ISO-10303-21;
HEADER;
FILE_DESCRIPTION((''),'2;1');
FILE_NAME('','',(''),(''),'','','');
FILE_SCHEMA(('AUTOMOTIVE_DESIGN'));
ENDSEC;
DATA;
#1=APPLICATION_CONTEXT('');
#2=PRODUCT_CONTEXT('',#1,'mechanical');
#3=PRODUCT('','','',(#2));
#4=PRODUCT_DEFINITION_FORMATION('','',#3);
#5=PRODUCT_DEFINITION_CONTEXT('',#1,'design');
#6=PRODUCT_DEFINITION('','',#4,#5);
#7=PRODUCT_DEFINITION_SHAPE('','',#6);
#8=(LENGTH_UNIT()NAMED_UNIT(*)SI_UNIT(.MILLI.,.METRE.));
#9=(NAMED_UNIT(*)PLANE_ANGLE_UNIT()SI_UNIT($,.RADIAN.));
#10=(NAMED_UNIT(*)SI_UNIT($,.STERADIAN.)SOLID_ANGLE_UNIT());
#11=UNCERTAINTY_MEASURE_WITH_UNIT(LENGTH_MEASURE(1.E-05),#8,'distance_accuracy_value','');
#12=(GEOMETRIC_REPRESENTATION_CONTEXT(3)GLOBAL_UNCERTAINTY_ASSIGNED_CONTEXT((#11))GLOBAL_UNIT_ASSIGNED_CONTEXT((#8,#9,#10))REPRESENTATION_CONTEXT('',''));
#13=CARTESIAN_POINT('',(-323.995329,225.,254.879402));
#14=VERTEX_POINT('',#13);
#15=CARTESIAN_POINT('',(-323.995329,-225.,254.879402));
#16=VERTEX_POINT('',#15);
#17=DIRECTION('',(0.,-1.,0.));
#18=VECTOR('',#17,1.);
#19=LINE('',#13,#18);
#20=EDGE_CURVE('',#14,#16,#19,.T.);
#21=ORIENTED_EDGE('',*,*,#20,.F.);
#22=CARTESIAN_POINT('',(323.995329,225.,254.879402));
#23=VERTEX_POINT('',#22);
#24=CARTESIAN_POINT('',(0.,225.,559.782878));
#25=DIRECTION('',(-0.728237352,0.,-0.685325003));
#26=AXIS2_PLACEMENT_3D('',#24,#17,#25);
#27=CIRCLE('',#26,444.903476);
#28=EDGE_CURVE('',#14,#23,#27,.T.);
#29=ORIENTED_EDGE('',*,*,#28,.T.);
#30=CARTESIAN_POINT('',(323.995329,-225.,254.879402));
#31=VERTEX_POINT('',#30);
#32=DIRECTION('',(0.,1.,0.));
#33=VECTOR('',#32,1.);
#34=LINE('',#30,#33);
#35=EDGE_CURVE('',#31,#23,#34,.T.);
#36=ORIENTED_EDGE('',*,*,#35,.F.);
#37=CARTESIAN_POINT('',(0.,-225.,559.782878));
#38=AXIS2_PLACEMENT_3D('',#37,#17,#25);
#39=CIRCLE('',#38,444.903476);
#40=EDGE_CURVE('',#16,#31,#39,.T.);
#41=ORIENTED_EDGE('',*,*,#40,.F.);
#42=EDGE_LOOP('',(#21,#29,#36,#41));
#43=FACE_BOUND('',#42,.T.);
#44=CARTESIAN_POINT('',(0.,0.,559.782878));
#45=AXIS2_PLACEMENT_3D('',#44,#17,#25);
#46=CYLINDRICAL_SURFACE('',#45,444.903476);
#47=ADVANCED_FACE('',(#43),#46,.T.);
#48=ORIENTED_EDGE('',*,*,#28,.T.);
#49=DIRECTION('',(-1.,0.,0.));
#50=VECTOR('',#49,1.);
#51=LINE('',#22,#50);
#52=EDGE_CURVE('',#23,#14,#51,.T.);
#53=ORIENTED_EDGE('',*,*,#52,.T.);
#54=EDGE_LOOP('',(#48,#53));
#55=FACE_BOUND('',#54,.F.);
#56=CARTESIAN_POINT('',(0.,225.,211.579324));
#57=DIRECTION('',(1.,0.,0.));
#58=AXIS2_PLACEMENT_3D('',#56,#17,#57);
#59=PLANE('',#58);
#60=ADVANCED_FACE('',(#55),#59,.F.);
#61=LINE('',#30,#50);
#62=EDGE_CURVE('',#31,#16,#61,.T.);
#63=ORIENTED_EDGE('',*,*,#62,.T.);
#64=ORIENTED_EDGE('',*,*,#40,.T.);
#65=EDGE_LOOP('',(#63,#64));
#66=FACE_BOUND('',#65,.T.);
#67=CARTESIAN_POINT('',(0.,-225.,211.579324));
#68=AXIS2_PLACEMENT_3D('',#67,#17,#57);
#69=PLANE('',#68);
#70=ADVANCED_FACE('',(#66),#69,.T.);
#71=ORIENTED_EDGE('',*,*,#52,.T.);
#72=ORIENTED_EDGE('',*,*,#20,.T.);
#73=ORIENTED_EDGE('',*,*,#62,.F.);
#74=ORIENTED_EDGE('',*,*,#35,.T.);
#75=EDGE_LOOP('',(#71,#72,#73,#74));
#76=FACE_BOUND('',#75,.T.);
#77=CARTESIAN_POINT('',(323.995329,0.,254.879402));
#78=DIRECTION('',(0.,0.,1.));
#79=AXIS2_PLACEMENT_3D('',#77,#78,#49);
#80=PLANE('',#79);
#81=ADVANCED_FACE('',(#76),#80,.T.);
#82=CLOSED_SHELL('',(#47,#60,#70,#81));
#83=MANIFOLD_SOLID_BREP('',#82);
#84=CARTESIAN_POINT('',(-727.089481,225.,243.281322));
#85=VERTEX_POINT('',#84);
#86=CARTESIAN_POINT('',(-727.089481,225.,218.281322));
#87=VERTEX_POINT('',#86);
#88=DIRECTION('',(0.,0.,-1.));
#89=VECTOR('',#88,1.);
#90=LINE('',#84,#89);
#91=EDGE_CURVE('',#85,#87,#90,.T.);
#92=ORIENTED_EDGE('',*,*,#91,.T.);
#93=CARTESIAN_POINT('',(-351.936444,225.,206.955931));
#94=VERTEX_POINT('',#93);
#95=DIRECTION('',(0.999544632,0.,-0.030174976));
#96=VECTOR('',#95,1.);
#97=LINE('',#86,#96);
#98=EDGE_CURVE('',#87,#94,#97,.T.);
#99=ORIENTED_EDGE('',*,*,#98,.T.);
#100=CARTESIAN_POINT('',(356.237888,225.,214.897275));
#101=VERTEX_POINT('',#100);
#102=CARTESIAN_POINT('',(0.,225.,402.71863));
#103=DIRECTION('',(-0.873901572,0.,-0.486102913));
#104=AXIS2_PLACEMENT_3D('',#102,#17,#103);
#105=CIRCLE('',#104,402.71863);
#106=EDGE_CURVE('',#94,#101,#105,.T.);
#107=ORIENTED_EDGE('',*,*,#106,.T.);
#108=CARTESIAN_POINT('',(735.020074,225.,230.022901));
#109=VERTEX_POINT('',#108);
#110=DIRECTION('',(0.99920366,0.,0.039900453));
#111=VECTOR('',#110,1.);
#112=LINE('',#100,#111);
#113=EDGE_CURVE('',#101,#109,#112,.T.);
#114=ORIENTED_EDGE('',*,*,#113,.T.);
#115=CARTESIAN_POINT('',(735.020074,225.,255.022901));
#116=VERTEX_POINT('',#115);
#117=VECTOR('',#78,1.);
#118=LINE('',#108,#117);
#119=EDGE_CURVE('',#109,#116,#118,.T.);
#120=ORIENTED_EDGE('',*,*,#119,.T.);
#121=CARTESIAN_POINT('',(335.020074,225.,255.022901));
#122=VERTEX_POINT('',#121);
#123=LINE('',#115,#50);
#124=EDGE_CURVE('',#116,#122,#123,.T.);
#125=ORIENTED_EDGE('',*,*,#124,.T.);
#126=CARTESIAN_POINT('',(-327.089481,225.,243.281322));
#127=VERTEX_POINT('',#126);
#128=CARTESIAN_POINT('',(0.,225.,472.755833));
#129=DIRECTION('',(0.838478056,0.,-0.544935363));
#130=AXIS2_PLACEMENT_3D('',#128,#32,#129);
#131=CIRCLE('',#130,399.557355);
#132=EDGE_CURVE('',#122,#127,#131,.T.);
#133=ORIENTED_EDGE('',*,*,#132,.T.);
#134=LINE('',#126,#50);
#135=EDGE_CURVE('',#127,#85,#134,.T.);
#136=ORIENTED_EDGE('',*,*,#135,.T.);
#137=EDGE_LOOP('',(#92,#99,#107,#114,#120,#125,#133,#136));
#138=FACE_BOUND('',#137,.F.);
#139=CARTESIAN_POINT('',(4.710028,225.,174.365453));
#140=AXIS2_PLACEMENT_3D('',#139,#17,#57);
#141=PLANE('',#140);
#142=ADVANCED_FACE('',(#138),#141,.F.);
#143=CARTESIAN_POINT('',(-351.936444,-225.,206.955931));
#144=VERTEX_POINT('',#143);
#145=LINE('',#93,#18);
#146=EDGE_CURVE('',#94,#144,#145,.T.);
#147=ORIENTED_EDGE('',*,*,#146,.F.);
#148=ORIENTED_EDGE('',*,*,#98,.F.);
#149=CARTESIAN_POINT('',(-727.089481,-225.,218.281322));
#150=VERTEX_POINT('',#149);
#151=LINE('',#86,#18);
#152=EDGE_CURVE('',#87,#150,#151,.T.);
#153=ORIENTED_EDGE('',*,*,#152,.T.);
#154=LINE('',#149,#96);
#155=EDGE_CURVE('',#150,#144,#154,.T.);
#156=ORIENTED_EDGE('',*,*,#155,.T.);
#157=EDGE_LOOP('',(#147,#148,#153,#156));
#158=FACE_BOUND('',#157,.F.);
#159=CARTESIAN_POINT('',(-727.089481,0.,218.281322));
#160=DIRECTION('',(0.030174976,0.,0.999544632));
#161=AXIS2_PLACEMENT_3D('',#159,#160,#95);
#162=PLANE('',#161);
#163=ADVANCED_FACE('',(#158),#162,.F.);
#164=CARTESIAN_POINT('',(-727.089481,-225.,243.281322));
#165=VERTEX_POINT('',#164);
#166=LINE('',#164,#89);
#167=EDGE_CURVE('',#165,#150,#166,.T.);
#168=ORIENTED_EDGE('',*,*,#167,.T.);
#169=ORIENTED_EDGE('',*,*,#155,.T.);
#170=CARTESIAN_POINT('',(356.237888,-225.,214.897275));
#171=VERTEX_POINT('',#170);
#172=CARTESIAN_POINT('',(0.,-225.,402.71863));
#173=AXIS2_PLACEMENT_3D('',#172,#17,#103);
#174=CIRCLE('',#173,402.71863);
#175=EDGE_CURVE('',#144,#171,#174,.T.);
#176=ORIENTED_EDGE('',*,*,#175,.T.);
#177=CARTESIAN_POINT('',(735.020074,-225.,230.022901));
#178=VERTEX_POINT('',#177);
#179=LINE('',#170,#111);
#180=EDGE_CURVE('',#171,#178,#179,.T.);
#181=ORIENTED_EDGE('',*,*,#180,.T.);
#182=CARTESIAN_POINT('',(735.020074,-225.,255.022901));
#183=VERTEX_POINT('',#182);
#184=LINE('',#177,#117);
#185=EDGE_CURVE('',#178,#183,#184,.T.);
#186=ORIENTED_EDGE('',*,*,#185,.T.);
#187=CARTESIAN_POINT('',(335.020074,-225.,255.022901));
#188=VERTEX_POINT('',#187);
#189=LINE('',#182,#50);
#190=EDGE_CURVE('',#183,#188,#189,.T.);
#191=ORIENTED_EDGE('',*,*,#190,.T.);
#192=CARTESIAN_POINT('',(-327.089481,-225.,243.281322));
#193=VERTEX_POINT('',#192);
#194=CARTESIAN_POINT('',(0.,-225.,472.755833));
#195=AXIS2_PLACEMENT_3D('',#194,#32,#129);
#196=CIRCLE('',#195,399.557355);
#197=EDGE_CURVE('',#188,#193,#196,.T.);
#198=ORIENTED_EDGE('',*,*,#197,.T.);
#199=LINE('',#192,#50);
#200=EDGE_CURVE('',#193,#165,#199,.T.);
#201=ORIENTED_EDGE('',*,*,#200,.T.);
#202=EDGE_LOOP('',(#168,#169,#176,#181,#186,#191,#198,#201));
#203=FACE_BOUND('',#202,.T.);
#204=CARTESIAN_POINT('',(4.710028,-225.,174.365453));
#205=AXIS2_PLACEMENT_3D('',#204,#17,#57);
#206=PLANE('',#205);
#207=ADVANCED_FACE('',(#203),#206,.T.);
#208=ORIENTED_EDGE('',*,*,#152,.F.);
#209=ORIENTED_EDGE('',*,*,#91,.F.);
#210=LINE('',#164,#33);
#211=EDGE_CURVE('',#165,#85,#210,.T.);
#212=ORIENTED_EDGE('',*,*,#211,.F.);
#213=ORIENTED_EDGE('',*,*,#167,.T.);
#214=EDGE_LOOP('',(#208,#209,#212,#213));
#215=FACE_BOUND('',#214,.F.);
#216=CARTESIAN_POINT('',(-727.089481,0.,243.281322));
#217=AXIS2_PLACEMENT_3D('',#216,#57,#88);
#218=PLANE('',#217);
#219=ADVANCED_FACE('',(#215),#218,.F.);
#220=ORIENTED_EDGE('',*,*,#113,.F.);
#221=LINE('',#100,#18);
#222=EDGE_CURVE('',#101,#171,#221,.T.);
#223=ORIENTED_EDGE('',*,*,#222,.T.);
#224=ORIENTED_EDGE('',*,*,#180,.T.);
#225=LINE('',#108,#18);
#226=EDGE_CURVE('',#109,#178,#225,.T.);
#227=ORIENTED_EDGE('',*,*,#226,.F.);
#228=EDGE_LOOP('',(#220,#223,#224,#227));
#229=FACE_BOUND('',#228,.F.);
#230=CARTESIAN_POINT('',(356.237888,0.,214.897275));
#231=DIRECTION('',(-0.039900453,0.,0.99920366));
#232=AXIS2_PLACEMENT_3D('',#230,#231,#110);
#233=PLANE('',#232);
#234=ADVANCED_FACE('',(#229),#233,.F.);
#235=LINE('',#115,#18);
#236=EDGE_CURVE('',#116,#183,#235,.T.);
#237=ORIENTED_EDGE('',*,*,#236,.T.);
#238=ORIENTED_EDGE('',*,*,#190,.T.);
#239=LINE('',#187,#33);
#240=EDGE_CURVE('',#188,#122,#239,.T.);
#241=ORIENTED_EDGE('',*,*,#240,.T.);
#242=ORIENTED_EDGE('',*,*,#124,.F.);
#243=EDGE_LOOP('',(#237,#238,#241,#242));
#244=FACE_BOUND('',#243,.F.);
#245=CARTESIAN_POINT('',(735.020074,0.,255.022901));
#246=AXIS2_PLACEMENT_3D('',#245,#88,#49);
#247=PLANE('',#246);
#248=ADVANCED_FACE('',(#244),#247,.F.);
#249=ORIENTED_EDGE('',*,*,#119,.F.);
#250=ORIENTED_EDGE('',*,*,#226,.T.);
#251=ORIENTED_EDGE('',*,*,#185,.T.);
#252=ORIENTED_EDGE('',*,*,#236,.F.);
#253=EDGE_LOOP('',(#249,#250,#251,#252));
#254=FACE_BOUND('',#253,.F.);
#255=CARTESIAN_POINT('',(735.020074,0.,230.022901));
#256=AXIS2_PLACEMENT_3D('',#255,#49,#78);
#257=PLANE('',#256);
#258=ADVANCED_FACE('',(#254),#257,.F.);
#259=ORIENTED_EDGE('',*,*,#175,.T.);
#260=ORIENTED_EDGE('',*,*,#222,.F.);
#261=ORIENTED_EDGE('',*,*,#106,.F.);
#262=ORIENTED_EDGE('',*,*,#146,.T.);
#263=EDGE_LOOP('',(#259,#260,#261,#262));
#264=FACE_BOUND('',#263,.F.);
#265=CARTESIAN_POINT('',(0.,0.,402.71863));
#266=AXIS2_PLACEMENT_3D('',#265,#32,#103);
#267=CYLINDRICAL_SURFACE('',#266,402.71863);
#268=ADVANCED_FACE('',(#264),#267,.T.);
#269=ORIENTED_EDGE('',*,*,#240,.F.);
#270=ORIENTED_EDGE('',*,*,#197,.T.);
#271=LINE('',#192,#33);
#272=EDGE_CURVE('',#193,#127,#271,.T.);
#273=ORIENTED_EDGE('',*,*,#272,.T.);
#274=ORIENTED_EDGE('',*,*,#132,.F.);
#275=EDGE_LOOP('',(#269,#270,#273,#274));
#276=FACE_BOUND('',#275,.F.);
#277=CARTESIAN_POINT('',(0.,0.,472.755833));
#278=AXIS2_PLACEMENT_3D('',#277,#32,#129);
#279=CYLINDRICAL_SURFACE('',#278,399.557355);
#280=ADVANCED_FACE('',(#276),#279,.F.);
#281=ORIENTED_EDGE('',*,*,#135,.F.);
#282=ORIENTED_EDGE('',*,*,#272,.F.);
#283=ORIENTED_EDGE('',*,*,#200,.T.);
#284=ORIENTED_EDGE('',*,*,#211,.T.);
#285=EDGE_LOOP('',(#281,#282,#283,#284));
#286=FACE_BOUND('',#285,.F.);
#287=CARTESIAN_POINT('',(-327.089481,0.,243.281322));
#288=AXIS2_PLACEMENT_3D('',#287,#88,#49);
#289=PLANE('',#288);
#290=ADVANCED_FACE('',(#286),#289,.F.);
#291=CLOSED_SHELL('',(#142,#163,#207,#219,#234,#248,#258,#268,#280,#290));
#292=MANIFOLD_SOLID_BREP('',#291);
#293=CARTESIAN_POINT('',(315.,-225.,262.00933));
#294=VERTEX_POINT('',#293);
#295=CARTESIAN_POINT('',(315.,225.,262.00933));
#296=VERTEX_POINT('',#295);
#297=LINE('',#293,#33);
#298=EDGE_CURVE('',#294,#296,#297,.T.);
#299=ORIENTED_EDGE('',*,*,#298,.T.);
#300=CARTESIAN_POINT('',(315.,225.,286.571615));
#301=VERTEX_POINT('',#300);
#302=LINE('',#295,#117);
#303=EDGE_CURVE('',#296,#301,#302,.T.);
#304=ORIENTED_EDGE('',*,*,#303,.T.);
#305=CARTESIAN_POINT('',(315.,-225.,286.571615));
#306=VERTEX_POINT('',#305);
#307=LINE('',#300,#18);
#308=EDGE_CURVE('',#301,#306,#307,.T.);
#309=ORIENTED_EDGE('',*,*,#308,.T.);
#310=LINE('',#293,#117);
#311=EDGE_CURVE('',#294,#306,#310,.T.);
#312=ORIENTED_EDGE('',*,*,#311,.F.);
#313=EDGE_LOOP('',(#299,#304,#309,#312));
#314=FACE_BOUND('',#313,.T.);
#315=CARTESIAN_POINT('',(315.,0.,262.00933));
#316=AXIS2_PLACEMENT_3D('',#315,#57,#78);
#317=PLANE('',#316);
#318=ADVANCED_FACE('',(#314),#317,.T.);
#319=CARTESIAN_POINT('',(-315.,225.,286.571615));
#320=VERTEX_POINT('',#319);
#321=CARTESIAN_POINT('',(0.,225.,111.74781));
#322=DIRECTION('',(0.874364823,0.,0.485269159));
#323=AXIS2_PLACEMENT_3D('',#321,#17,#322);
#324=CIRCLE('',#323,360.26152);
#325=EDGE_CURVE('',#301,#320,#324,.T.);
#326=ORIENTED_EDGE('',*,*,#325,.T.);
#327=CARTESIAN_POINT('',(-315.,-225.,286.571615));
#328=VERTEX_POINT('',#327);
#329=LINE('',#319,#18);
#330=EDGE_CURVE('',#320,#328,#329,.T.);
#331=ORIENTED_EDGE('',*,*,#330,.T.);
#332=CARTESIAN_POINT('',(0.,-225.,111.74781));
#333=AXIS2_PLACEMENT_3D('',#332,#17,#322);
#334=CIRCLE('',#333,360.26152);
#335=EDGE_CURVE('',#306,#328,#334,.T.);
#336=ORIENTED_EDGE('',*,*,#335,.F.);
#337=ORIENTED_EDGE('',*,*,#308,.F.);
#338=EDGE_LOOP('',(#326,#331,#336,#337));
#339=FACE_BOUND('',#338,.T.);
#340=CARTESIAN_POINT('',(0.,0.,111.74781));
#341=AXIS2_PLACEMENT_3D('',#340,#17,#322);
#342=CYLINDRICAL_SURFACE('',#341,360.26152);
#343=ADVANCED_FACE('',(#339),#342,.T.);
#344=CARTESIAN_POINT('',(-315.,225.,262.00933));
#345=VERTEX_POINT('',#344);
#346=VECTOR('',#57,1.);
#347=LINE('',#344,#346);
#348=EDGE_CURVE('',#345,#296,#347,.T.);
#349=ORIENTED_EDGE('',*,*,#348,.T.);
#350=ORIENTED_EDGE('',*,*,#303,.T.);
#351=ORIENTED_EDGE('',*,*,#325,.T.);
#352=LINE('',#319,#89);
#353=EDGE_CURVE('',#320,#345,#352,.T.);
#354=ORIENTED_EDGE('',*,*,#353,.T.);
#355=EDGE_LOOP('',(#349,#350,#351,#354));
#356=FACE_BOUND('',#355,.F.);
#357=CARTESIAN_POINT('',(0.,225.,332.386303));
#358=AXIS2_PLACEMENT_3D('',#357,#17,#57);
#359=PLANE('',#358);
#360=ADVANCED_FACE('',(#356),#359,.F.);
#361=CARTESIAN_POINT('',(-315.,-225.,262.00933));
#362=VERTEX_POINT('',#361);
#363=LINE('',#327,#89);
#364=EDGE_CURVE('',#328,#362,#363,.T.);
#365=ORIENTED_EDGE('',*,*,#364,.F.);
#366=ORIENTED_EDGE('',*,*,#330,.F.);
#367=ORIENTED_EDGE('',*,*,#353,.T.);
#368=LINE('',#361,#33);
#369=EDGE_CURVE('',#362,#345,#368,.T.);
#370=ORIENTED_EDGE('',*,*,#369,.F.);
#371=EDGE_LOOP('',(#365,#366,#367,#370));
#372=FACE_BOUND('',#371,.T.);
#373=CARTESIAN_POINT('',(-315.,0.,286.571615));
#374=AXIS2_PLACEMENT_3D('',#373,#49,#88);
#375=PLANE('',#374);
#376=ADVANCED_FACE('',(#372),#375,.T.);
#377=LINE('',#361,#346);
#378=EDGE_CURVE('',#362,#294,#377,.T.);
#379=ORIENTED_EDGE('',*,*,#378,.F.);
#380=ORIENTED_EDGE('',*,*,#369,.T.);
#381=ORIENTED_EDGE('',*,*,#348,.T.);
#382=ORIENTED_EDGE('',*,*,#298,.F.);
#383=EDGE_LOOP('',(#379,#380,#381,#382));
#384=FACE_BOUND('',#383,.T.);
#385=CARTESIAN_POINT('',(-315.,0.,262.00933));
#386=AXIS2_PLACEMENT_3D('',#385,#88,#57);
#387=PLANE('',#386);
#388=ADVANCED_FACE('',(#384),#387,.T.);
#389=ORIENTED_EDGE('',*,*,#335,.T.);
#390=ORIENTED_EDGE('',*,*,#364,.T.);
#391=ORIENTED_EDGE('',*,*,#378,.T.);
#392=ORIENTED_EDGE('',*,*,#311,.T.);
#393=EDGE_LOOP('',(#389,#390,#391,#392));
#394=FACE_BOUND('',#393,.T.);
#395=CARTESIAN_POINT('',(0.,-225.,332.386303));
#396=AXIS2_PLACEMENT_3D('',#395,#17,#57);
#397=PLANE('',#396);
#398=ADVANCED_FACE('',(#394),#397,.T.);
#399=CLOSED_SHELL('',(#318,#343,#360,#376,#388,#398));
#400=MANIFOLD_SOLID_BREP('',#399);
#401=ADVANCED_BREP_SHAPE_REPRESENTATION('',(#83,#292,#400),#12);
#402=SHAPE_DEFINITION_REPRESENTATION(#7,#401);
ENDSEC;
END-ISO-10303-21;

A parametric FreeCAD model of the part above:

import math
import FreeCAD as App
import Part
import Sketcher
from FreeCAD import Vector
Q = App.Units.Quantity

doc = App.newDocument("Part")
body = doc.addObject("PartDesign::Body", "Body")

# Sketch on XZ plane
sketch1 = body.newObject("Sketcher::SketchObject", "Sketch")
sketch1.AttachmentSupport = (doc.getObject("XZ_Plane"), [""])
sketch1.MapMode = "FlatFace"
sketch1.addGeometry([
    Part.LineSegment(Vector(315, 262, 0), Vector(315, 287, 0)),
    Part.ArcOfCircle(Part.Circle(Vector(0, 112, 0), Vector(0, 0, 1), 360), math.radians(29), math.radians(151)),
    Part.LineSegment(Vector(-315, 287, 0), Vector(-315, 262, 0)),
    Part.LineSegment(Vector(-315, 262, 0), Vector(315, 262, 0)),
], False)
sketch1.addConstraint([
    Sketcher.Constraint("Coincident", 0, 2, 1, 1),
    Sketcher.Constraint("Coincident", 1, 2, 2, 1),
    Sketcher.Constraint("Coincident", 2, 2, 3, 1),
    Sketcher.Constraint("Coincident", 3, 2, 0, 1),
    Sketcher.Constraint("Vertical", 0),
    Sketcher.Constraint("Vertical", 2),
    Sketcher.Constraint("Horizontal", 3),
    Sketcher.Constraint("Symmetric", 0, 2, 1, 2, -2),
    Sketcher.Constraint("DistanceX", 3, 1, 3, 2, Q("630 mm")),
    Sketcher.Constraint("Radius", 1, Q("360.26152 mm")),
    Sketcher.Constraint("DistanceY", 0, 1, 0, 2, Q("24.562285 mm")),
    Sketcher.Constraint("DistanceY", -1, 1, 1, 3, Q("111.74781 mm")),
])
pad1 = body.newObject("PartDesign::Pad", "Pad")
pad1.Profile = sketch1
pad1.Length = 450
pad1.Midplane = True
body2 = doc.addObject("PartDesign::Body", "Body001")
body2.AllowCompound = True

# Sketch on XZ plane
sketch2 = body2.newObject("Sketcher::SketchObject", "Sketch001")
sketch2.AttachmentSupport = (doc.getObject("XZ_Plane001"), [""])
sketch2.MapMode = "FlatFace"
sketch2.addGeometry([
    Part.LineSegment(Vector(-727, 243, 0), Vector(-727, 218, 0)),  # 0
    Part.LineSegment(Vector(-727, 218, 0), Vector(-352, 207, 0)),  # 1
    Part.ArcOfCircle(Part.Circle(Vector(0, 403, 0), Vector(0, 0, 1), 403), math.radians(-151), math.radians(-28)),  # 2
    Part.LineSegment(Vector(356, 215, 0), Vector(735, 230, 0)),  # 3
    Part.LineSegment(Vector(735, 230, 0), Vector(735, 255, 0)),  # 4
    Part.LineSegment(Vector(735, 255, 0), Vector(335, 255, 0)),  # 5
    Part.ArcOfCircle(Part.Circle(Vector(0, 473, 0), Vector(0, 0, 1), 400), math.radians(-145), math.radians(-33)),  # 6
    Part.LineSegment(Vector(-327, 243, 0), Vector(-727, 243, 0)),  # 7
    Part.LineSegment(Vector(324, 255, 0), Vector(-324, 255, 0)),  # 8
    Part.ArcOfCircle(Part.Circle(Vector(0, 560, 0), Vector(0, 0, 1), 445), math.radians(-137), math.radians(-43)),  # 9
], False)
sketch2.addConstraint([
    Sketcher.Constraint("Coincident", 0, 2, 1, 1),
    Sketcher.Constraint("Coincident", 1, 2, 2, 1),
    Sketcher.Constraint("Coincident", 2, 2, 3, 1),
    Sketcher.Constraint("Coincident", 3, 2, 4, 1),
    Sketcher.Constraint("Coincident", 4, 2, 5, 1),
    Sketcher.Constraint("Coincident", 5, 2, 6, 2),
    Sketcher.Constraint("Coincident", 6, 1, 7, 1),
    Sketcher.Constraint("Coincident", 7, 2, 0, 1),
    Sketcher.Constraint("Coincident", 8, 1, 9, 2),
    Sketcher.Constraint("Coincident", 9, 1, 8, 2),
    Sketcher.Constraint("Vertical", 0),
    Sketcher.Constraint("Vertical", 4),
    Sketcher.Constraint("Horizontal", 5),
    Sketcher.Constraint("Horizontal", 7),
    Sketcher.Constraint("Horizontal", 8),
    Sketcher.Constraint("PointOnObject", 2, 3, -2),
    Sketcher.Constraint("PointOnObject", 6, 3, -2),
    Sketcher.Constraint("PointOnObject", 9, 3, -2),
    Sketcher.Constraint("Equal", 5, 7),
    Sketcher.Constraint("Equal", 0, 4),
    Sketcher.Constraint("DistanceX", 5, 2, 5, 1, Q("400 mm")),
    Sketcher.Constraint("DistanceY", 0, 2, 0, 1, Q("25 mm")),
    Sketcher.Constraint("Radius", 2, Q("402.71863 mm")),
    Sketcher.Constraint("Radius", 6, Q("399.557355 mm")),
    Sketcher.Constraint("Radius", 9, Q("444.903476 mm")),
    Sketcher.Constraint("DistanceX", 8, 2, 8, 1, Q("647.990658 mm")),
    Sketcher.Constraint("DistanceY", -1, 1, 3, 2, Q("230.022901 mm")),
    Sketcher.Constraint("DistanceY", -1, 1, 8, 1, Q("254.879402 mm")),
    Sketcher.Constraint("DistanceY", 1, 2, 2, 3, Q("195.762699 mm")),
    Sketcher.Constraint("DistanceY", -1, 1, 2, 3, Q("402.71863 mm")),
    Sketcher.Constraint("DistanceX", 0, 2, -1, 1, Q("727.089481 mm")),
    Sketcher.Constraint("DistanceY", -1, 1, 0, 2, Q("218.281322 mm")),
    Sketcher.Constraint("DistanceX", 2, 3, 2, 2, Q("356.237888 mm")),
])
pad2 = body2.newObject("PartDesign::Pad", "Pad001")
pad2.Profile = sketch2
pad2.Length = 450
pad2.Midplane = True

doc.recompute()
